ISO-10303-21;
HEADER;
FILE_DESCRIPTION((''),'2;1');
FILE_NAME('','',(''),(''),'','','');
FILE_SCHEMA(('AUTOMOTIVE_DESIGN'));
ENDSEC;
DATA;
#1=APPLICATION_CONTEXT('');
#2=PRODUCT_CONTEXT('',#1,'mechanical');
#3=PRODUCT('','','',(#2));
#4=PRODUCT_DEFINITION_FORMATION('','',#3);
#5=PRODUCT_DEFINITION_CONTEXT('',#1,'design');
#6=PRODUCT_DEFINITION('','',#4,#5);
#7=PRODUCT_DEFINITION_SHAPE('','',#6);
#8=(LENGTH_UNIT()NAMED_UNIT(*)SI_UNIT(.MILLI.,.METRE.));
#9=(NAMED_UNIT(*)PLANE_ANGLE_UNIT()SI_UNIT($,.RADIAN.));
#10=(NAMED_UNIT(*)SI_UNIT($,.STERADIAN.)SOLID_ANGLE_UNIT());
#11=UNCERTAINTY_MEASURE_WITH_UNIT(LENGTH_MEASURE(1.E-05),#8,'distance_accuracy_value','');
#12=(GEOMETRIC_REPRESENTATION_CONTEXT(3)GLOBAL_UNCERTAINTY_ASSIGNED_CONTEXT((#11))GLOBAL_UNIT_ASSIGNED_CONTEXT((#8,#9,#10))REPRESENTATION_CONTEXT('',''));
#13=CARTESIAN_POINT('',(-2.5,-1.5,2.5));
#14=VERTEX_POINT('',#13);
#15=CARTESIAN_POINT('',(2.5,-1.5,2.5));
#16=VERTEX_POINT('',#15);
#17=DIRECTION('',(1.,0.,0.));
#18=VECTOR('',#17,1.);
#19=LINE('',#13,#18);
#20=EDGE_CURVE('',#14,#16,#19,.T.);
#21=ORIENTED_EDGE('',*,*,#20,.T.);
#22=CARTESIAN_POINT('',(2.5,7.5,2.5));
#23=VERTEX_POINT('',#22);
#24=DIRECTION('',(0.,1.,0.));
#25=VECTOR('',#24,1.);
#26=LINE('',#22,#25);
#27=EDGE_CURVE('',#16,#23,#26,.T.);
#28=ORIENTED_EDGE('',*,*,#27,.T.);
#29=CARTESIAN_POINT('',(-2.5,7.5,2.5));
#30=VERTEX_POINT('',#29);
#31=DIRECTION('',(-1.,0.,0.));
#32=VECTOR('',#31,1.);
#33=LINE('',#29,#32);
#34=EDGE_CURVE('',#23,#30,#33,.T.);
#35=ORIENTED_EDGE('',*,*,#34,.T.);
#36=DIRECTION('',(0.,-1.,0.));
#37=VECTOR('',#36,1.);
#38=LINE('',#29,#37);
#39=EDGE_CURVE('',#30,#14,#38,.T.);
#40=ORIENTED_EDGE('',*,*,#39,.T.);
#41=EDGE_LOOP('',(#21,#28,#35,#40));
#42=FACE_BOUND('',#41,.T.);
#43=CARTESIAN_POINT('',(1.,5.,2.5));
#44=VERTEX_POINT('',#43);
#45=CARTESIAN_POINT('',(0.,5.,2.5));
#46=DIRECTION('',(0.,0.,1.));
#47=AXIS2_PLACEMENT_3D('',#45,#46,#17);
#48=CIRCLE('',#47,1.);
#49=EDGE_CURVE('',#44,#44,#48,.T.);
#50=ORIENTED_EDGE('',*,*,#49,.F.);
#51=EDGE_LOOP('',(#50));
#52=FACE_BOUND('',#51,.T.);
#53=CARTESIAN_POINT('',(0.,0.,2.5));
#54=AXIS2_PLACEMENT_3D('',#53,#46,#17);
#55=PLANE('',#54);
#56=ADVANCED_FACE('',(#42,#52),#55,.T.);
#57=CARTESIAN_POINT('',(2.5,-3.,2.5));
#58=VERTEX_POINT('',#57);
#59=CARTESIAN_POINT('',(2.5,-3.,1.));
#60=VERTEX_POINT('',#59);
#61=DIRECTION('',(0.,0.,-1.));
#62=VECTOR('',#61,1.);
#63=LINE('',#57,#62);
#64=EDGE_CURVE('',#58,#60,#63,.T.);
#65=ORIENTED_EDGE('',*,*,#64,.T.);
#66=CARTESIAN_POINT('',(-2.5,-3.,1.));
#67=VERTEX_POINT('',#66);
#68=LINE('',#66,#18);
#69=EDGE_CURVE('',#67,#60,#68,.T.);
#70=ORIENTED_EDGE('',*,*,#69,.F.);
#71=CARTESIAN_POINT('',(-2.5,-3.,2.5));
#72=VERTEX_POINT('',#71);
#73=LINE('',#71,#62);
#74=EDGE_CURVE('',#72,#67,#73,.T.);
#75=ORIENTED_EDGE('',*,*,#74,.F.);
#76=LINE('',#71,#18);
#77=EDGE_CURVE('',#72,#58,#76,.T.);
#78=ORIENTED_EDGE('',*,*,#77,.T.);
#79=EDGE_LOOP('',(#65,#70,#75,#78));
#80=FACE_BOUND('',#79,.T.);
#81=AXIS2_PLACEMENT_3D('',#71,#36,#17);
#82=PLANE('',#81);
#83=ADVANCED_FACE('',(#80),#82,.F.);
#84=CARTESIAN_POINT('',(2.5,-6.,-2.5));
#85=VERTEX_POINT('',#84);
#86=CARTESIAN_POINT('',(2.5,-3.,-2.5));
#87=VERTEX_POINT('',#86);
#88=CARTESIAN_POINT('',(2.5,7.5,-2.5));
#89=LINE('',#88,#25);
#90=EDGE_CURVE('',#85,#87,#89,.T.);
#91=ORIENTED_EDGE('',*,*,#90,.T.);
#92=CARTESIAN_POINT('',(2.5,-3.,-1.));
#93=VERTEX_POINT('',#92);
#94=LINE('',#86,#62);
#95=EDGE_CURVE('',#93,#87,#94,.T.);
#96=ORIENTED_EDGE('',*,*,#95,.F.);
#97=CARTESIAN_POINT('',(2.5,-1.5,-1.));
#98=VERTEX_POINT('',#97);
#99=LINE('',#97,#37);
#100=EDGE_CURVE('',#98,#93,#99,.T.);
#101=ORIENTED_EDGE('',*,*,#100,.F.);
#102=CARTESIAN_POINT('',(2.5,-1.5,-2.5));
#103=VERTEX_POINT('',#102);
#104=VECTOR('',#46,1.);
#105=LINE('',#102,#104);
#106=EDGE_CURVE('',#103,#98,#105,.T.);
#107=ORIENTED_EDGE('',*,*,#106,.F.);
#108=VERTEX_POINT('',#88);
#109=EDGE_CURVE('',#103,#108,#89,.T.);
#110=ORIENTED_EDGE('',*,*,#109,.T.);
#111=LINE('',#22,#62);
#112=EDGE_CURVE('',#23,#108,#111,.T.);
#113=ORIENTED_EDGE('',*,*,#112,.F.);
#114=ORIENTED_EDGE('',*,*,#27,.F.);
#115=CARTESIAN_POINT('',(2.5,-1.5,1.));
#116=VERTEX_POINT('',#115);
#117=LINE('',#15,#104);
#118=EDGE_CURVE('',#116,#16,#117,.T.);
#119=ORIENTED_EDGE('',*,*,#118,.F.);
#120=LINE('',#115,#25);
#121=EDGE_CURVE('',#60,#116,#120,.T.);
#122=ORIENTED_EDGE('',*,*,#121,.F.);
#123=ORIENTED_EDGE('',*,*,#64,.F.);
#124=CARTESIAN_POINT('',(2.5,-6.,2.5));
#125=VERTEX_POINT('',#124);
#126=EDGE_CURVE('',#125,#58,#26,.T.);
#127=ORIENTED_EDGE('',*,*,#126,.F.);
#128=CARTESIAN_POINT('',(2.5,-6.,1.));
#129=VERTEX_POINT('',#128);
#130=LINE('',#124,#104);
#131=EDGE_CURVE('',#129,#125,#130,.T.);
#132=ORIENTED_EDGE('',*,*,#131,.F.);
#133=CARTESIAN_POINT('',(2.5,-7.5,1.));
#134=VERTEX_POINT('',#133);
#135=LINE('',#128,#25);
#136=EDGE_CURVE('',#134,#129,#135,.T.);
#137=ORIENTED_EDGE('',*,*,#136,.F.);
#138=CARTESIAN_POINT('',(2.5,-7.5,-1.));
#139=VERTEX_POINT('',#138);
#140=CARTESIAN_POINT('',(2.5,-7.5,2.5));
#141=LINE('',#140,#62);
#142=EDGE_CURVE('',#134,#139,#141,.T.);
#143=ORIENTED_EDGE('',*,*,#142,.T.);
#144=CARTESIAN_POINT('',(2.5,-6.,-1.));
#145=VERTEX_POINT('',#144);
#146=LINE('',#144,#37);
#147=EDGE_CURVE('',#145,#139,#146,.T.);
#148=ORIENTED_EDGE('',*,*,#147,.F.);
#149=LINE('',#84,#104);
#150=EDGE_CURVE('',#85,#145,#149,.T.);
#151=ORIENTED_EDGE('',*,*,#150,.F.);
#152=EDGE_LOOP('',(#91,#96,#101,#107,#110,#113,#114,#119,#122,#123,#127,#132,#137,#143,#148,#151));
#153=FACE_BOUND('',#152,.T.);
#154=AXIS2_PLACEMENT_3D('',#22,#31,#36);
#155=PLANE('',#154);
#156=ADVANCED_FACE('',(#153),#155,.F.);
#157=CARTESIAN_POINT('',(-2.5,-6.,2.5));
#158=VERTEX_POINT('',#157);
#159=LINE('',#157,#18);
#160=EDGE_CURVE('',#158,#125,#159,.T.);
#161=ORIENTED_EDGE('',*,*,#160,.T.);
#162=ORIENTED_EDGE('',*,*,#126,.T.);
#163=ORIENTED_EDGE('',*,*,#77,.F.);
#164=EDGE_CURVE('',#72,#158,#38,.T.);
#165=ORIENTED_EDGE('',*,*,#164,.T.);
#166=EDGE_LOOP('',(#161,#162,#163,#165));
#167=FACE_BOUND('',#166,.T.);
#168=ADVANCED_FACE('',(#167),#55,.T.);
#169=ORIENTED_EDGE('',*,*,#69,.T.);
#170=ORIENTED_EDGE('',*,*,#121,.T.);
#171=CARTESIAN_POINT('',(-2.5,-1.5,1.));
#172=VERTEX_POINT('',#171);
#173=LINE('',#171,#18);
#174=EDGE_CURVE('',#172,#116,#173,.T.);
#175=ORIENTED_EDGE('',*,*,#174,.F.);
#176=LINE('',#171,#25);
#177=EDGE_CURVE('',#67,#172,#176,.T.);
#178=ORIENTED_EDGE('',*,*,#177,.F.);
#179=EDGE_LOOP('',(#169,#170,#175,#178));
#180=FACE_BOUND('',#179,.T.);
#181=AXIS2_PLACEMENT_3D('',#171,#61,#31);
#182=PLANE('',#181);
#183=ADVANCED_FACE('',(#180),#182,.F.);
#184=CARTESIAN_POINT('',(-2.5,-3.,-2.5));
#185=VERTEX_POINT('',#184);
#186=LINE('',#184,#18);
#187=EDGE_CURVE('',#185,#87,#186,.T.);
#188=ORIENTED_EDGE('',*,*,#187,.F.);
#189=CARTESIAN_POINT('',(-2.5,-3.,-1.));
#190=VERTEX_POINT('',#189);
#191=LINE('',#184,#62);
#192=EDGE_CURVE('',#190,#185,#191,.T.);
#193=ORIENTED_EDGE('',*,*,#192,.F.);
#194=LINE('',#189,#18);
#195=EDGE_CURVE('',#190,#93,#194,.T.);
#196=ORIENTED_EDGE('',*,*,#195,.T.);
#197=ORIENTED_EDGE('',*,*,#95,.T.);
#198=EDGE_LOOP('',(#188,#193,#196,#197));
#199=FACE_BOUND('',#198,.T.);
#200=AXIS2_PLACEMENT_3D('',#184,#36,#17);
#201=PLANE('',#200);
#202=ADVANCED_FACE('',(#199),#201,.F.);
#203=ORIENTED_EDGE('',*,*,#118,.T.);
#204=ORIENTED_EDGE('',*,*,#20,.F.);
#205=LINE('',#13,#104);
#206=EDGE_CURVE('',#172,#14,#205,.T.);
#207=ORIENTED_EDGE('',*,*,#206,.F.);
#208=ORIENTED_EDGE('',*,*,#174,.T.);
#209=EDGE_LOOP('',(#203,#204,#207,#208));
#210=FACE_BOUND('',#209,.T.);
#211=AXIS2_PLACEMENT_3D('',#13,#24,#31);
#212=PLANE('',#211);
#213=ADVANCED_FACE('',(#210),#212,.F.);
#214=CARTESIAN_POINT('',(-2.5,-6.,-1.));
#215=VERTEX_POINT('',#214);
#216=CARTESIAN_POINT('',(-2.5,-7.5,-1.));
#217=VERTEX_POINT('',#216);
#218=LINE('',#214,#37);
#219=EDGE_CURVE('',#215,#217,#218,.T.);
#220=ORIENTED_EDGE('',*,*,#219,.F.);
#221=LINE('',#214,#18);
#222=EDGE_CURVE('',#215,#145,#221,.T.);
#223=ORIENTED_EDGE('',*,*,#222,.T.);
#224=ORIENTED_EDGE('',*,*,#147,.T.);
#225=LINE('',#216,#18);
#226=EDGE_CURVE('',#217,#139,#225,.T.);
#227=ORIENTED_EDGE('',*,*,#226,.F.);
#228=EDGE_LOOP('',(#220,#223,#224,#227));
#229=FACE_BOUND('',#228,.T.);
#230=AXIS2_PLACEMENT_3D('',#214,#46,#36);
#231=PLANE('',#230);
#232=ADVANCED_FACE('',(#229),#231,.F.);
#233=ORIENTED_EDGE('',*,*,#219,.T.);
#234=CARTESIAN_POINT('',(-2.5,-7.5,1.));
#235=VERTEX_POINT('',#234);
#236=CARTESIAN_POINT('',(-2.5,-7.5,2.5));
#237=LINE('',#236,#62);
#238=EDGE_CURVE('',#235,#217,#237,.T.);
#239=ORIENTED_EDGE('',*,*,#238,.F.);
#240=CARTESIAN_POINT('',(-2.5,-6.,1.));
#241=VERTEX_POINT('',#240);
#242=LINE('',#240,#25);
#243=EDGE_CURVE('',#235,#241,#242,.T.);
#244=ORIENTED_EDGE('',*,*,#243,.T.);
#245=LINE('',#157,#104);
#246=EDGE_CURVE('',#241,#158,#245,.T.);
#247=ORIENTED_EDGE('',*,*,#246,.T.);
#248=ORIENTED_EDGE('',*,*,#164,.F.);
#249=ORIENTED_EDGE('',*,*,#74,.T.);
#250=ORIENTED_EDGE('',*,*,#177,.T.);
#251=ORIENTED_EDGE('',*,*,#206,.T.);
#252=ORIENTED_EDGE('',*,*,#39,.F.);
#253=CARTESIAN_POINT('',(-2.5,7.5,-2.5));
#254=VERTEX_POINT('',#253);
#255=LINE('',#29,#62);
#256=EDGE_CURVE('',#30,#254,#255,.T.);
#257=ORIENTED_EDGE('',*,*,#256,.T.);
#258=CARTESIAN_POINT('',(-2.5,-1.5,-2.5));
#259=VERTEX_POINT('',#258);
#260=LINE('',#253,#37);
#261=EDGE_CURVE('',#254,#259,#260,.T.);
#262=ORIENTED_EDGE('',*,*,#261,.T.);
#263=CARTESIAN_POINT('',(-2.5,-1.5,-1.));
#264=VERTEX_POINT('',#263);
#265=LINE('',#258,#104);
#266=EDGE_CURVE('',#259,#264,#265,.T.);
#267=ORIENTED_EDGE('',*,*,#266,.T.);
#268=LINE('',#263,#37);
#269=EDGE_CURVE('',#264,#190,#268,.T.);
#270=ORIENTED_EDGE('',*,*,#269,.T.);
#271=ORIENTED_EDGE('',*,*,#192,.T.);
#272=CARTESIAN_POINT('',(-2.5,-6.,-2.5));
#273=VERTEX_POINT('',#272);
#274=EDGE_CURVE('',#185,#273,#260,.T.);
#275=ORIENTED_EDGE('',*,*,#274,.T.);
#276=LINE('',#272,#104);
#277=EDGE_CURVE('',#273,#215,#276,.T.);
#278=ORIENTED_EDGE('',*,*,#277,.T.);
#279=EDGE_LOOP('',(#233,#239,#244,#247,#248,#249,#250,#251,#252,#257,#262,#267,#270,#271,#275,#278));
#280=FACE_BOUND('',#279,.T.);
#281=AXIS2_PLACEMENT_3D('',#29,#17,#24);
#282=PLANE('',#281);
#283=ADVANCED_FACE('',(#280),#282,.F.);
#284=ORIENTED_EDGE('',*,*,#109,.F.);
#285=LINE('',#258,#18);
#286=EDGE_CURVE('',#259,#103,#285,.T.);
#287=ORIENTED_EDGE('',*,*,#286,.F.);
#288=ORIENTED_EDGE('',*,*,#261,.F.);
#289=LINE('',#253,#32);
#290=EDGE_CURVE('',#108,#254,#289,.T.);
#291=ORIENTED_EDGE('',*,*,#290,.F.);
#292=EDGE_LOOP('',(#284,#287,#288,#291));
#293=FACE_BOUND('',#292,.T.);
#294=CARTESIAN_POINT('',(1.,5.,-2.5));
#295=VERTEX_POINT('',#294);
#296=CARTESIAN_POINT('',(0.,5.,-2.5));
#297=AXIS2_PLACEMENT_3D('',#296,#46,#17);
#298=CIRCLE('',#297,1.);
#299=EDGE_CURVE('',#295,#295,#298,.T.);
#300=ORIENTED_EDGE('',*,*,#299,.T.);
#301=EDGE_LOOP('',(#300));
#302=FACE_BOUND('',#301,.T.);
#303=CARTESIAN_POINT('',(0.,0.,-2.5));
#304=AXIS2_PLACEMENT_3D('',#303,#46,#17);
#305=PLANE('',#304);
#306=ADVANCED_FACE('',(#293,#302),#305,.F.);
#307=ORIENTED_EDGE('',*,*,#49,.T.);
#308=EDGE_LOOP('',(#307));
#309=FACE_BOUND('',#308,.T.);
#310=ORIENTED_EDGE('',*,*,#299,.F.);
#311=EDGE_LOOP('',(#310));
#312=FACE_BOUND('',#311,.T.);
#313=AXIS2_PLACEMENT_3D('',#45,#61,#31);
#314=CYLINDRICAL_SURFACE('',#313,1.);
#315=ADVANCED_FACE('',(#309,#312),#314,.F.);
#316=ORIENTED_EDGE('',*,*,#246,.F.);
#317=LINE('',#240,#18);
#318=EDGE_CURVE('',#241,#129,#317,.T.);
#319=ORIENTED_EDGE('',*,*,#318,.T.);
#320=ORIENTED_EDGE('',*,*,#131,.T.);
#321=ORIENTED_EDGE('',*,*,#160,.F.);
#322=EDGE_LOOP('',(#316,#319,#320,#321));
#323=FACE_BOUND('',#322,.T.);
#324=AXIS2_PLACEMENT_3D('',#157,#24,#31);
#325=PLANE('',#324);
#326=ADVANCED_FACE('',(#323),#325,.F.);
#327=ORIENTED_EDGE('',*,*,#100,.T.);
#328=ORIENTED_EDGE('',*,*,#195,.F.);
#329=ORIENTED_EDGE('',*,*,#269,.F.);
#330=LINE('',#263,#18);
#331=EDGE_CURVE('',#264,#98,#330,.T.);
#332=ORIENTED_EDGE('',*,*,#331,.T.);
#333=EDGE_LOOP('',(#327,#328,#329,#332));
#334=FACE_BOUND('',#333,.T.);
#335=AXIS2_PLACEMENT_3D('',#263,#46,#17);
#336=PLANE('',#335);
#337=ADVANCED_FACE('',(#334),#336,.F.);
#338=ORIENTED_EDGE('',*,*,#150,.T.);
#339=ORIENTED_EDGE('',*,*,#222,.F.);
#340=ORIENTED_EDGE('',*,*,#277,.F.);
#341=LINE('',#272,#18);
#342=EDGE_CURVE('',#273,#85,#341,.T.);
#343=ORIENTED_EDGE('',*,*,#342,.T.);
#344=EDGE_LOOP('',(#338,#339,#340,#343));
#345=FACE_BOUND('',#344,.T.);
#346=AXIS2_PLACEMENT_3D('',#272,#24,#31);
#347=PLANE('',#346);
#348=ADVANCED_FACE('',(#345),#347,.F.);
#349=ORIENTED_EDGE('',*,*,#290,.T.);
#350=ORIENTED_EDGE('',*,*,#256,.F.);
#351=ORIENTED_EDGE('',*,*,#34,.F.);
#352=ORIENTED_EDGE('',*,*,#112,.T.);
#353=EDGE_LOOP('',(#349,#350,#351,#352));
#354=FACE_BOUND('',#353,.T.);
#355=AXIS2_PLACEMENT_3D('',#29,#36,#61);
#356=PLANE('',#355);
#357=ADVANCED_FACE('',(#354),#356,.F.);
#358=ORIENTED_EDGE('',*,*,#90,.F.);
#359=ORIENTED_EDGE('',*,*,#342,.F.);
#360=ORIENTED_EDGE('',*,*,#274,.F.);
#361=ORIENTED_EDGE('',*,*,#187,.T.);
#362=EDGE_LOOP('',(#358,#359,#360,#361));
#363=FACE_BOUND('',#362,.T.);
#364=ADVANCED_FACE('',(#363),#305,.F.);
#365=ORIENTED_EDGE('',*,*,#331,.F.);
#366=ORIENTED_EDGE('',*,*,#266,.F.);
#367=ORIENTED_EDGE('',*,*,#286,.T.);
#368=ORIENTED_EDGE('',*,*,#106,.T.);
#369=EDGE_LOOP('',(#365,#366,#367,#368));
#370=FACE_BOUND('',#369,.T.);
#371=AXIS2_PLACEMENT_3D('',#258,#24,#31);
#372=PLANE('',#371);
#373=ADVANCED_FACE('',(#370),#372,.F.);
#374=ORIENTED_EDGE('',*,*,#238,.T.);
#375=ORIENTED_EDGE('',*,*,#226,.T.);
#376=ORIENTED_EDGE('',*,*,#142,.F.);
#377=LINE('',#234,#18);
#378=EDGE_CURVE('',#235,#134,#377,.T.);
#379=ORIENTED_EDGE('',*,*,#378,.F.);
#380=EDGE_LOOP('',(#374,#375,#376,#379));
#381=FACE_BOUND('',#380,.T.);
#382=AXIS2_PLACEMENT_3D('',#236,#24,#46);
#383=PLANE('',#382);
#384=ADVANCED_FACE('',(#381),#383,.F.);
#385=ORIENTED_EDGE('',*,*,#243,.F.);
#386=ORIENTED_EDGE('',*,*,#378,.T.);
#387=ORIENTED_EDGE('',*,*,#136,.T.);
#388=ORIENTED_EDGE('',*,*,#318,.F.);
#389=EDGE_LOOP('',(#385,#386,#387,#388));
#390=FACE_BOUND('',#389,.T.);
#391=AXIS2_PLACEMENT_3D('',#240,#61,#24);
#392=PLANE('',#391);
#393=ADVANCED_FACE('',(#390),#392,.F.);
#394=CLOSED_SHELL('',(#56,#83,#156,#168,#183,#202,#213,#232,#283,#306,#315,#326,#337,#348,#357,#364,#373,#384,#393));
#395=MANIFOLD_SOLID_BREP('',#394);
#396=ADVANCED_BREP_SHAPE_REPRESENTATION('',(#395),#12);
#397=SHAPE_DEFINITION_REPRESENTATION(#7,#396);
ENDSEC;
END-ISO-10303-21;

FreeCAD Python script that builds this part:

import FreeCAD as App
import Part
import Sketcher
Q = App.Units.Quantity

doc = App.newDocument("Part")
params = doc.addObject("Spreadsheet::Sheet", "Params")
for row, (alias, value) in enumerate([
    ("sketch1_diameter", "2 mm"),
    ("sketch1_width", "5 mm"),
    ("sketch1_height", "15 mm"),
    ("pad1_length", "5 mm"),
    ("sketch2_width", "1.5 mm"),
], start=1):
    params.set(f"A{row}", alias)
    params.set(f"B{row}", "=" + value)
    params.setAlias(f"B{row}", alias)

body = doc.addObject("PartDesign::Body", "Body")

sketch1 = body.newObject("Sketcher::SketchObject", "Sketch")
sketch1.AttachmentSupport = (doc.getObject("XY_Plane"), [""])
sketch1.MapMode = "FlatFace"
sketch1.addGeometry(Part.LineSegment(App.Vector(-2.5, 7.5, 0), App.Vector(-2.5, -7.5, 0)), False)
sketch1.addGeometry(Part.LineSegment(App.Vector(-2.5, -7.5, 0), App.Vector(2.5, -7.5, 0)), False)
sketch1.addGeometry(Part.LineSegment(App.Vector(2.5, -7.5, 0), App.Vector(2.5, 7.5, 0)), False)
sketch1.addGeometry(Part.LineSegment(App.Vector(2.5, 7.5, 0), App.Vector(-2.5, 7.5, 0)), False)
sketch1.addGeometry(Part.Circle(App.Vector(0, 5, 0), App.Vector(0, 0, 1), 1), False)
sketch1.addConstraint(Sketcher.Constraint("Coincident", 0, 2, 1, 1))
sketch1.addConstraint(Sketcher.Constraint("Coincident", 1, 2, 2, 1))
sketch1.addConstraint(Sketcher.Constraint("Coincident", 2, 2, 3, 1))
sketch1.addConstraint(Sketcher.Constraint("Coincident", 3, 2, 0, 1))
sketch1.addConstraint(Sketcher.Constraint("Vertical", 0))
sketch1.addConstraint(Sketcher.Constraint("Horizontal", 1))
sketch1.addConstraint(Sketcher.Constraint("Vertical", 2))
sketch1.addConstraint(Sketcher.Constraint("Horizontal", 3))
sketch1.addConstraint(Sketcher.Constraint("Symmetric", 0, 2, 2, 2, -1, 1))
sketch1.addConstraint(Sketcher.Constraint("PointOnObject", 4, 3, -2))
sketch1.addConstraint(Sketcher.Constraint("Diameter", 4, Q("2 mm")))
sketch1.addConstraint(Sketcher.Constraint("DistanceX", 1, 1, 1, 2, Q("5 mm")))
sketch1.addConstraint(Sketcher.Constraint("DistanceY", 0, 2, 0, 1, Q("15 mm")))
sketch1.addConstraint(Sketcher.Constraint("DistanceY", -1, 1, 4, 3, Q("5 mm")))
sketch1.setExpression("Constraints[10]", "Params.sketch1_diameter")
sketch1.setExpression("Constraints[11]", "Params.sketch1_width")
sketch1.setExpression("Constraints[12]", "Params.sketch1_height")
pad1 = body.newObject("PartDesign::Pad", "Pad")
pad1.Profile = sketch1
pad1.setExpression("Length", "Params.pad1_length")
pad1.Midplane = True

sketch2 = body.newObject("Sketcher::SketchObject", "Sketch001")
sketch2.AttachmentSupport = (doc.getObject("YZ_Plane"), [""])
sketch2.MapMode = "FlatFace"
sketch2.AttachmentOffset = App.Placement(App.Vector(0, 0, 2.5), App.Rotation())
sketch2.addGeometry(Part.LineSegment(App.Vector(-1.5, 2.5, 0), App.Vector(-3, 2.5, 0)), False)
sketch2.addGeometry(Part.LineSegment(App.Vector(-3, 2.5, 0), App.Vector(-3, 1, 0)), False)
sketch2.addGeometry(Part.LineSegment(App.Vector(-3, 1, 0), App.Vector(-1.5, 1, 0)), False)
sketch2.addGeometry(Part.LineSegment(App.Vector(-1.5, 1, 0), App.Vector(-1.5, 2.5, 0)), False)
sketch2.addGeometry(Part.LineSegment(App.Vector(-6, 2.5, 0), App.Vector(-7.5, 2.5, 0)), False)
sketch2.addGeometry(Part.LineSegment(App.Vector(-7.5, 2.5, 0), App.Vector(-7.5, 1, 0)), False)
sketch2.addGeometry(Part.LineSegment(App.Vector(-7.5, 1, 0), App.Vector(-6, 1, 0)), False)
sketch2.addGeometry(Part.LineSegment(App.Vector(-6, 1, 0), App.Vector(-6, 2.5, 0)), False)
sketch2.addGeometry(Part.LineSegment(App.Vector(-6, -1, 0), App.Vector(-7.5, -1, 0)), False)
sketch2.addGeometry(Part.LineSegment(App.Vector(-7.5, -1, 0), App.Vector(-7.5, -2.5, 0)), False)
sketch2.addGeometry(Part.LineSegment(App.Vector(-7.5, -2.5, 0), App.Vector(-6, -2.5, 0)), False)
sketch2.addGeometry(Part.LineSegment(App.Vector(-6, -2.5, 0), App.Vector(-6, -1, 0)), False)
sketch2.addGeometry(Part.LineSegment(App.Vector(-1.5, -1, 0), App.Vector(-3, -1, 0)), False)
sketch2.addGeometry(Part.LineSegment(App.Vector(-3, -1, 0), App.Vector(-3, -2.5, 0)), False)
sketch2.addGeometry(Part.LineSegment(App.Vector(-3, -2.5, 0), App.Vector(-1.5, -2.5, 0)), False)
sketch2.addGeometry(Part.LineSegment(App.Vector(-1.5, -2.5, 0), App.Vector(-1.5, -1, 0)), False)
sketch2.addConstraint(Sketcher.Constraint("Coincident", 0, 2, 1, 1))
sketch2.addConstraint(Sketcher.Constraint("Coincident", 1, 2, 2, 1))
sketch2.addConstraint(Sketcher.Constraint("Coincident", 2, 2, 3, 1))
sketch2.addConstraint(Sketcher.Constraint("Coincident", 3, 2, 0, 1))
sketch2.addConstraint(Sketcher.Constraint("Coincident", 4, 2, 5, 1))
sketch2.addConstraint(Sketcher.Constraint("Coincident", 5, 2, 6, 1))
sketch2.addConstraint(Sketcher.Constraint("Coincident", 6, 2, 7, 1))
sketch2.addConstraint(Sketcher.Constraint("Coincident", 7, 2, 4, 1))
sketch2.addConstraint(Sketcher.Constraint("Coincident", 8, 2, 9, 1))
sketch2.addConstraint(Sketcher.Constraint("Coincident", 9, 2, 10, 1))
sketch2.addConstraint(Sketcher.Constraint("Coincident", 10, 2, 11, 1))
sketch2.addConstraint(Sketcher.Constraint("Coincident", 11, 2, 8, 1))
sketch2.addConstraint(Sketcher.Constraint("Coincident", 12, 2, 13, 1))
sketch2.addConstraint(Sketcher.Constraint("Coincident", 13, 2, 14, 1))
sketch2.addConstraint(Sketcher.Constraint("Coincident", 14, 2, 15, 1))
sketch2.addConstraint(Sketcher.Constraint("Coincident", 15, 2, 12, 1))
sketch2.addConstraint(Sketcher.Constraint("Horizontal", 0))
sketch2.addConstraint(Sketcher.Constraint("Vertical", 1))
sketch2.addConstraint(Sketcher.Constraint("Horizontal", 2))
sketch2.addConstraint(Sketcher.Constraint("Vertical", 3))
sketch2.addConstraint(Sketcher.Constraint("Horizontal", 4))
sketch2.addConstraint(Sketcher.Constraint("Vertical", 5))
sketch2.addConstraint(Sketcher.Constraint("Horizontal", 6))
sketch2.addConstraint(Sketcher.Constraint("Vertical", 7))
sketch2.addConstraint(Sketcher.Constraint("Horizontal", 8))
sketch2.addConstraint(Sketcher.Constraint("Vertical", 9))
sketch2.addConstraint(Sketcher.Constraint("Horizontal", 10))
sketch2.addConstraint(Sketcher.Constraint("Vertical", 11))
sketch2.addConstraint(Sketcher.Constraint("Horizontal", 12))
sketch2.addConstraint(Sketcher.Constraint("Vertical", 13))
sketch2.addConstraint(Sketcher.Constraint("Horizontal", 14))
sketch2.addConstraint(Sketcher.Constraint("Vertical", 15))
sketch2.addConstraint(Sketcher.Constraint("Symmetric", 5, 2, 8, 2, -1))
sketch2.addConstraint(Sketcher.Constraint("Symmetric", 7, 2, 10, 2, -1))
sketch2.addConstraint(Sketcher.Constraint("Symmetric", 1, 2, 12, 2, -1))
sketch2.addConstraint(Sketcher.Constraint("Symmetric", 3, 2, 14, 2, -1))
sketch2.addConstraint(Sketcher.Constraint("Horizontal", 3, 2, 4, 2))
sketch2.addConstraint(Sketcher.Constraint("Horizontal", 2, 2, 5, 2))
sketch2.addConstraint(Sketcher.Constraint("Equal", 2, 4))
sketch2.addConstraint(Sketcher.Constraint("Equal", 14, 1))
sketch2.addConstraint(Sketcher.Constraint("DistanceX", 0, 2, 0, 1, Q("1.5 mm")))
sketch2.addConstraint(Sketcher.Constraint("DistanceX", 0, 2, -1, 1, Q("3 mm")))
sketch2.addConstraint(Sketcher.Constraint("DistanceY", -1, 1, 1, 2, Q("1 mm")))
sketch2.addConstraint(Sketcher.Constraint("DistanceX", 6, 2, -1, 1, Q("6 mm")))
sketch2.setExpression("Constraints[40]", "Params.sketch2_width")
pocket1 = body.newObject("PartDesign::Pocket", "Pocket")
pocket1.Profile = sketch2
pocket1.Type = "ThroughAll"

doc.recompute()
